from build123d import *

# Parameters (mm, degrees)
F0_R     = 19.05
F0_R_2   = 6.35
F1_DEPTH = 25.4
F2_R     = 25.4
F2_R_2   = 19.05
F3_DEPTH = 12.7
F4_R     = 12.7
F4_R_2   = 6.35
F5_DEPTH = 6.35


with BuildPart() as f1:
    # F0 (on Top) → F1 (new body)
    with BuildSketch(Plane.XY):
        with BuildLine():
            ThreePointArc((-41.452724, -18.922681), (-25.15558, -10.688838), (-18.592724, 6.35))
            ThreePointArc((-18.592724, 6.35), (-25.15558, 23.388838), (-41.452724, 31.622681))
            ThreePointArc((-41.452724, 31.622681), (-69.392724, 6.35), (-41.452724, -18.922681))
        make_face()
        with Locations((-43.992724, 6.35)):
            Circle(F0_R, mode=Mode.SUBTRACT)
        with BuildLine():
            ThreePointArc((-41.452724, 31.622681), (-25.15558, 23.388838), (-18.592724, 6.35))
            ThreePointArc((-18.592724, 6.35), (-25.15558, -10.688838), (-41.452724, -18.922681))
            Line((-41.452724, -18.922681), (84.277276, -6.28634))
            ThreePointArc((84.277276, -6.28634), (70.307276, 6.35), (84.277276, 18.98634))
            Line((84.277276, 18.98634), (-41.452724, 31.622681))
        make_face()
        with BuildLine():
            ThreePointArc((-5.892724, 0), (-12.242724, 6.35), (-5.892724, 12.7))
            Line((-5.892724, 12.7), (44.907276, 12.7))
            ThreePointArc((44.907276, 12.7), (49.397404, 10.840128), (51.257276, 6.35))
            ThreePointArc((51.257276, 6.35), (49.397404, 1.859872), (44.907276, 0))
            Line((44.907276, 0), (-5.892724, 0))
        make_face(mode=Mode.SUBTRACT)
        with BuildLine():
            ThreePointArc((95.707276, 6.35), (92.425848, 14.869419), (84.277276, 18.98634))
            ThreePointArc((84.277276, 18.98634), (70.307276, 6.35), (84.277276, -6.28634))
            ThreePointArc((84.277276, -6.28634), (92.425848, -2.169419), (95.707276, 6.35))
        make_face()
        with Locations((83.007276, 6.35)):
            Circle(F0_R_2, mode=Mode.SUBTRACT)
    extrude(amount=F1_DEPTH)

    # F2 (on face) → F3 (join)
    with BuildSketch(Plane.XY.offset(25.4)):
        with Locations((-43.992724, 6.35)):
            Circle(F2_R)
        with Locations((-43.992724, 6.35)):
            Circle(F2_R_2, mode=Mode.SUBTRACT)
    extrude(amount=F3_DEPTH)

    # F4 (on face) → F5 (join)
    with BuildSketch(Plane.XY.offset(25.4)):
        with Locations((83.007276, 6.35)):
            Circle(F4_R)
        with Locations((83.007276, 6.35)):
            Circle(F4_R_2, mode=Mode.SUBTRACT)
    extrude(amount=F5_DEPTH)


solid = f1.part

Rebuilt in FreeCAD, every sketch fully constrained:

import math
import FreeCAD as App
import Part
import Sketcher
from FreeCAD import Vector
Q = App.Units.Quantity

doc = App.newDocument("Part")
params = doc.addObject("Spreadsheet::Sheet", "Params")
for row, (alias, value) in enumerate([
    ("sketch1_radius", "1 in"),
    ("sketch1_diameter", "1.5 in"),
    ("sketch1_diameter2", "0.5 in"),
    ("sketch1_radius2", "0.5 in"),
    ("sketch1_width", "2 in"),
    ("pad1_length", "1 in"),
    ("sketch2_diameter", "2 in"),
    ("sketch2_diameter2", "1.5 in"),
    ("pad2_length", "0.5 in"),
    ("sketch3_diameter", "1 in"),
    ("sketch3_diameter2", "0.5 in"),
    ("pad3_length", "0.25 in"),
], start=1):
    params.set(f"A{row}", alias)
    params.set(f"B{row}", "=" + value)
    params.setAlias(f"B{row}", alias)

body = doc.addObject("PartDesign::Body", "Body")

# Sketch on XY plane
sketch1 = body.newObject("Sketcher::SketchObject", "Sketch")
sketch1.AttachmentSupport = (doc.getObject("XY_Plane"), [""])
sketch1.MapMode = "FlatFace"
sketch1.addGeometry([
    Part.ArcOfCircle(Part.Circle(Vector(-44, 6, 0), Vector(0, 0, 1), 25), math.radians(84), math.radians(276)),  # 0
    Part.LineSegment(Vector(-41, -19, 0), Vector(84, -6, 0)),  # 1
    Part.ArcOfCircle(Part.Circle(Vector(83, 6, 0), Vector(0, 0, 1), 13), math.radians(-84), math.radians(0)),  # 2
    Part.ArcOfCircle(Part.Circle(Vector(83, 6, 0), Vector(0, 0, 1), 13), math.radians(0), math.radians(84)),  # 3
    Part.LineSegment(Vector(84, 19, 0), Vector(-41, 32, 0)),  # 4
    Part.Circle(Vector(-44, 6, 0), Vector(0, 0, 1), 19),  # 5
    Part.LineSegment(Vector(45, 0, 0), Vector(-6, 0, 0)),  # 6
    Part.ArcOfCircle(Part.Circle(Vector(-6, 6, 0), Vector(0, 0, 1), 6), math.radians(90), math.radians(270)),  # 7
    Part.LineSegment(Vector(-6, 13, 0), Vector(45, 13, 0)),  # 8
    Part.ArcOfCircle(Part.Circle(Vector(45, 6, 0), Vector(0, 0, 1), 6), math.radians(0), math.radians(90)),  # 9
    Part.ArcOfCircle(Part.Circle(Vector(45, 6, 0), Vector(0, 0, 1), 6), math.radians(-90), math.radians(0)),  # 10
    Part.Circle(Vector(83, 6, 0), Vector(0, 0, 1), 6),  # 11
], False)
sketch1.addConstraint([
    Sketcher.Constraint("Tangent", 0, 2, 1, 1),
    Sketcher.Constraint("Tangent", 1, 2, 2, 1),
    Sketcher.Constraint("Tangent", 2, 2, 3, 1),
    Sketcher.Constraint("Tangent", 3, 2, 4, 1),
    Sketcher.Constraint("Tangent", 4, 2, 0, 1),
    Sketcher.Constraint("Tangent", 6, 2, 7, 2),
    Sketcher.Constraint("Tangent", 7, 1, 8, 1),
    Sketcher.Constraint("Tangent", 8, 2, 9, 2),
    Sketcher.Constraint("Tangent", 9, 1, 10, 2),
    Sketcher.Constraint("Tangent", 10, 1, 6, 1),
    Sketcher.Constraint("Horizontal", 6),
    Sketcher.Constraint("Horizontal", 8),
    Sketcher.Constraint("Coincident", 5, 3, 0, 3),
    Sketcher.Constraint("Coincident", 11, 3, 2, 3),
    Sketcher.Constraint("Equal", 2, 3),
    Sketcher.Constraint("Equal", 7, 9),
    Sketcher.Constraint("Equal", 10, 11),
    Sketcher.Constraint("PointOnObject", 6, 2, -1),
    Sketcher.Constraint("Horizontal", 0, 3, 2, 3),
    Sketcher.Constraint("Horizontal", 5, 3, 7, 3),
    Sketcher.Constraint("Horizontal", 11, 3, 2, 2),
    Sketcher.Constraint("Horizontal", 2, 2, 9, 1),
    Sketcher.Constraint("Radius", 0, Q("1 in")),
    Sketcher.Constraint("Diameter", 5, Q("1.5 in")),
    Sketcher.Constraint("Diameter", 11, Q("0.5 in")),
    Sketcher.Constraint("Radius", 2, Q("0.5 in")),
    Sketcher.Constraint("DistanceX", 6, 2, 6, 1, Q("2 in")),
    Sketcher.Constraint("DistanceX", 0, 3, 2, 3, Q("5 in")),
    Sketcher.Constraint("DistanceX", 9, 3, 2, 2, Q("2 in")),
    Sketcher.Constraint("DistanceX", 0, 3, -1, 1, Q("43.992724 mm")),
])
sketch1.setExpression("Constraints[22]", "Params.sketch1_radius")
sketch1.setExpression("Constraints[23]", "Params.sketch1_diameter")
sketch1.setExpression("Constraints[24]", "Params.sketch1_diameter2")
sketch1.setExpression("Constraints[25]", "Params.sketch1_radius2")
sketch1.setExpression("Constraints[26]", "Params.sketch1_width")
pad1 = body.newObject("PartDesign::Pad", "Pad")
pad1.Profile = sketch1
pad1.setExpression("Length", "Params.pad1_length")

# Sketch on XY plane
sketch2 = body.newObject("Sketcher::SketchObject", "Sketch001")
sketch2.AttachmentSupport = (doc.getObject("XY_Plane"), [""])
sketch2.MapMode = "FlatFace"
sketch2.AttachmentOffset = App.Placement(Vector(0, 0, 1 * 25.4), App.Rotation())
sketch2.addGeometry([
    Part.Circle(Vector(-44, 6, 0), Vector(0, 0, 1), 25),
    Part.Circle(Vector(-44, 6, 0), Vector(0, 0, 1), 19),
], False)
sketch2.addConstraint([
    Sketcher.Constraint("Coincident", 1, 3, 0, 3),
    Sketcher.Constraint("Diameter", 0, Q("2 in")),
    Sketcher.Constraint("Diameter", 1, Q("1.5 in")),
    Sketcher.Constraint("DistanceY", -1, 1, 0, 3, Q("0.25 in")),
    Sketcher.Constraint("DistanceX", 0, 3, -1, 1, Q("43.992724 mm")),
])
sketch2.setExpression("Constraints[1]", "Params.sketch2_diameter")
sketch2.setExpression("Constraints[2]", "Params.sketch2_diameter2")
pad2 = body.newObject("PartDesign::Pad", "Pad001")
pad2.Profile = sketch2
pad2.setExpression("Length", "Params.pad2_length")

# Sketch on XY plane
sketch3 = body.newObject("Sketcher::SketchObject", "Sketch002")
sketch3.AttachmentSupport = (doc.getObject("XY_Plane"), [""])
sketch3.MapMode = "FlatFace"
sketch3.AttachmentOffset = App.Placement(Vector(0, 0, 1 * 25.4), App.Rotation())
sketch3.addGeometry([
    Part.Circle(Vector(83, 6, 0), Vector(0, 0, 1), 13),
    Part.Circle(Vector(83, 6, 0), Vector(0, 0, 1), 6),
], False)
sketch3.addConstraint([
    Sketcher.Constraint("Coincident", 1, 3, 0, 3),
    Sketcher.Constraint("Diameter", 0, Q("1 in")),
    Sketcher.Constraint("Diameter", 1, Q("0.5 in")),
    Sketcher.Constraint("DistanceY", -1, 1, 0, 3, Q("0.25 in")),
    Sketcher.Constraint("DistanceX", -1, 1, 0, 3, Q("83.007276 mm")),
])
sketch3.setExpression("Constraints[1]", "Params.sketch3_diameter")
sketch3.setExpression("Constraints[2]", "Params.sketch3_diameter2")
pad3 = body.newObject("PartDesign::Pad", "Pad002")
pad3.Profile = sketch3
pad3.setExpression("Length", "Params.pad3_length")

doc.recompute()
